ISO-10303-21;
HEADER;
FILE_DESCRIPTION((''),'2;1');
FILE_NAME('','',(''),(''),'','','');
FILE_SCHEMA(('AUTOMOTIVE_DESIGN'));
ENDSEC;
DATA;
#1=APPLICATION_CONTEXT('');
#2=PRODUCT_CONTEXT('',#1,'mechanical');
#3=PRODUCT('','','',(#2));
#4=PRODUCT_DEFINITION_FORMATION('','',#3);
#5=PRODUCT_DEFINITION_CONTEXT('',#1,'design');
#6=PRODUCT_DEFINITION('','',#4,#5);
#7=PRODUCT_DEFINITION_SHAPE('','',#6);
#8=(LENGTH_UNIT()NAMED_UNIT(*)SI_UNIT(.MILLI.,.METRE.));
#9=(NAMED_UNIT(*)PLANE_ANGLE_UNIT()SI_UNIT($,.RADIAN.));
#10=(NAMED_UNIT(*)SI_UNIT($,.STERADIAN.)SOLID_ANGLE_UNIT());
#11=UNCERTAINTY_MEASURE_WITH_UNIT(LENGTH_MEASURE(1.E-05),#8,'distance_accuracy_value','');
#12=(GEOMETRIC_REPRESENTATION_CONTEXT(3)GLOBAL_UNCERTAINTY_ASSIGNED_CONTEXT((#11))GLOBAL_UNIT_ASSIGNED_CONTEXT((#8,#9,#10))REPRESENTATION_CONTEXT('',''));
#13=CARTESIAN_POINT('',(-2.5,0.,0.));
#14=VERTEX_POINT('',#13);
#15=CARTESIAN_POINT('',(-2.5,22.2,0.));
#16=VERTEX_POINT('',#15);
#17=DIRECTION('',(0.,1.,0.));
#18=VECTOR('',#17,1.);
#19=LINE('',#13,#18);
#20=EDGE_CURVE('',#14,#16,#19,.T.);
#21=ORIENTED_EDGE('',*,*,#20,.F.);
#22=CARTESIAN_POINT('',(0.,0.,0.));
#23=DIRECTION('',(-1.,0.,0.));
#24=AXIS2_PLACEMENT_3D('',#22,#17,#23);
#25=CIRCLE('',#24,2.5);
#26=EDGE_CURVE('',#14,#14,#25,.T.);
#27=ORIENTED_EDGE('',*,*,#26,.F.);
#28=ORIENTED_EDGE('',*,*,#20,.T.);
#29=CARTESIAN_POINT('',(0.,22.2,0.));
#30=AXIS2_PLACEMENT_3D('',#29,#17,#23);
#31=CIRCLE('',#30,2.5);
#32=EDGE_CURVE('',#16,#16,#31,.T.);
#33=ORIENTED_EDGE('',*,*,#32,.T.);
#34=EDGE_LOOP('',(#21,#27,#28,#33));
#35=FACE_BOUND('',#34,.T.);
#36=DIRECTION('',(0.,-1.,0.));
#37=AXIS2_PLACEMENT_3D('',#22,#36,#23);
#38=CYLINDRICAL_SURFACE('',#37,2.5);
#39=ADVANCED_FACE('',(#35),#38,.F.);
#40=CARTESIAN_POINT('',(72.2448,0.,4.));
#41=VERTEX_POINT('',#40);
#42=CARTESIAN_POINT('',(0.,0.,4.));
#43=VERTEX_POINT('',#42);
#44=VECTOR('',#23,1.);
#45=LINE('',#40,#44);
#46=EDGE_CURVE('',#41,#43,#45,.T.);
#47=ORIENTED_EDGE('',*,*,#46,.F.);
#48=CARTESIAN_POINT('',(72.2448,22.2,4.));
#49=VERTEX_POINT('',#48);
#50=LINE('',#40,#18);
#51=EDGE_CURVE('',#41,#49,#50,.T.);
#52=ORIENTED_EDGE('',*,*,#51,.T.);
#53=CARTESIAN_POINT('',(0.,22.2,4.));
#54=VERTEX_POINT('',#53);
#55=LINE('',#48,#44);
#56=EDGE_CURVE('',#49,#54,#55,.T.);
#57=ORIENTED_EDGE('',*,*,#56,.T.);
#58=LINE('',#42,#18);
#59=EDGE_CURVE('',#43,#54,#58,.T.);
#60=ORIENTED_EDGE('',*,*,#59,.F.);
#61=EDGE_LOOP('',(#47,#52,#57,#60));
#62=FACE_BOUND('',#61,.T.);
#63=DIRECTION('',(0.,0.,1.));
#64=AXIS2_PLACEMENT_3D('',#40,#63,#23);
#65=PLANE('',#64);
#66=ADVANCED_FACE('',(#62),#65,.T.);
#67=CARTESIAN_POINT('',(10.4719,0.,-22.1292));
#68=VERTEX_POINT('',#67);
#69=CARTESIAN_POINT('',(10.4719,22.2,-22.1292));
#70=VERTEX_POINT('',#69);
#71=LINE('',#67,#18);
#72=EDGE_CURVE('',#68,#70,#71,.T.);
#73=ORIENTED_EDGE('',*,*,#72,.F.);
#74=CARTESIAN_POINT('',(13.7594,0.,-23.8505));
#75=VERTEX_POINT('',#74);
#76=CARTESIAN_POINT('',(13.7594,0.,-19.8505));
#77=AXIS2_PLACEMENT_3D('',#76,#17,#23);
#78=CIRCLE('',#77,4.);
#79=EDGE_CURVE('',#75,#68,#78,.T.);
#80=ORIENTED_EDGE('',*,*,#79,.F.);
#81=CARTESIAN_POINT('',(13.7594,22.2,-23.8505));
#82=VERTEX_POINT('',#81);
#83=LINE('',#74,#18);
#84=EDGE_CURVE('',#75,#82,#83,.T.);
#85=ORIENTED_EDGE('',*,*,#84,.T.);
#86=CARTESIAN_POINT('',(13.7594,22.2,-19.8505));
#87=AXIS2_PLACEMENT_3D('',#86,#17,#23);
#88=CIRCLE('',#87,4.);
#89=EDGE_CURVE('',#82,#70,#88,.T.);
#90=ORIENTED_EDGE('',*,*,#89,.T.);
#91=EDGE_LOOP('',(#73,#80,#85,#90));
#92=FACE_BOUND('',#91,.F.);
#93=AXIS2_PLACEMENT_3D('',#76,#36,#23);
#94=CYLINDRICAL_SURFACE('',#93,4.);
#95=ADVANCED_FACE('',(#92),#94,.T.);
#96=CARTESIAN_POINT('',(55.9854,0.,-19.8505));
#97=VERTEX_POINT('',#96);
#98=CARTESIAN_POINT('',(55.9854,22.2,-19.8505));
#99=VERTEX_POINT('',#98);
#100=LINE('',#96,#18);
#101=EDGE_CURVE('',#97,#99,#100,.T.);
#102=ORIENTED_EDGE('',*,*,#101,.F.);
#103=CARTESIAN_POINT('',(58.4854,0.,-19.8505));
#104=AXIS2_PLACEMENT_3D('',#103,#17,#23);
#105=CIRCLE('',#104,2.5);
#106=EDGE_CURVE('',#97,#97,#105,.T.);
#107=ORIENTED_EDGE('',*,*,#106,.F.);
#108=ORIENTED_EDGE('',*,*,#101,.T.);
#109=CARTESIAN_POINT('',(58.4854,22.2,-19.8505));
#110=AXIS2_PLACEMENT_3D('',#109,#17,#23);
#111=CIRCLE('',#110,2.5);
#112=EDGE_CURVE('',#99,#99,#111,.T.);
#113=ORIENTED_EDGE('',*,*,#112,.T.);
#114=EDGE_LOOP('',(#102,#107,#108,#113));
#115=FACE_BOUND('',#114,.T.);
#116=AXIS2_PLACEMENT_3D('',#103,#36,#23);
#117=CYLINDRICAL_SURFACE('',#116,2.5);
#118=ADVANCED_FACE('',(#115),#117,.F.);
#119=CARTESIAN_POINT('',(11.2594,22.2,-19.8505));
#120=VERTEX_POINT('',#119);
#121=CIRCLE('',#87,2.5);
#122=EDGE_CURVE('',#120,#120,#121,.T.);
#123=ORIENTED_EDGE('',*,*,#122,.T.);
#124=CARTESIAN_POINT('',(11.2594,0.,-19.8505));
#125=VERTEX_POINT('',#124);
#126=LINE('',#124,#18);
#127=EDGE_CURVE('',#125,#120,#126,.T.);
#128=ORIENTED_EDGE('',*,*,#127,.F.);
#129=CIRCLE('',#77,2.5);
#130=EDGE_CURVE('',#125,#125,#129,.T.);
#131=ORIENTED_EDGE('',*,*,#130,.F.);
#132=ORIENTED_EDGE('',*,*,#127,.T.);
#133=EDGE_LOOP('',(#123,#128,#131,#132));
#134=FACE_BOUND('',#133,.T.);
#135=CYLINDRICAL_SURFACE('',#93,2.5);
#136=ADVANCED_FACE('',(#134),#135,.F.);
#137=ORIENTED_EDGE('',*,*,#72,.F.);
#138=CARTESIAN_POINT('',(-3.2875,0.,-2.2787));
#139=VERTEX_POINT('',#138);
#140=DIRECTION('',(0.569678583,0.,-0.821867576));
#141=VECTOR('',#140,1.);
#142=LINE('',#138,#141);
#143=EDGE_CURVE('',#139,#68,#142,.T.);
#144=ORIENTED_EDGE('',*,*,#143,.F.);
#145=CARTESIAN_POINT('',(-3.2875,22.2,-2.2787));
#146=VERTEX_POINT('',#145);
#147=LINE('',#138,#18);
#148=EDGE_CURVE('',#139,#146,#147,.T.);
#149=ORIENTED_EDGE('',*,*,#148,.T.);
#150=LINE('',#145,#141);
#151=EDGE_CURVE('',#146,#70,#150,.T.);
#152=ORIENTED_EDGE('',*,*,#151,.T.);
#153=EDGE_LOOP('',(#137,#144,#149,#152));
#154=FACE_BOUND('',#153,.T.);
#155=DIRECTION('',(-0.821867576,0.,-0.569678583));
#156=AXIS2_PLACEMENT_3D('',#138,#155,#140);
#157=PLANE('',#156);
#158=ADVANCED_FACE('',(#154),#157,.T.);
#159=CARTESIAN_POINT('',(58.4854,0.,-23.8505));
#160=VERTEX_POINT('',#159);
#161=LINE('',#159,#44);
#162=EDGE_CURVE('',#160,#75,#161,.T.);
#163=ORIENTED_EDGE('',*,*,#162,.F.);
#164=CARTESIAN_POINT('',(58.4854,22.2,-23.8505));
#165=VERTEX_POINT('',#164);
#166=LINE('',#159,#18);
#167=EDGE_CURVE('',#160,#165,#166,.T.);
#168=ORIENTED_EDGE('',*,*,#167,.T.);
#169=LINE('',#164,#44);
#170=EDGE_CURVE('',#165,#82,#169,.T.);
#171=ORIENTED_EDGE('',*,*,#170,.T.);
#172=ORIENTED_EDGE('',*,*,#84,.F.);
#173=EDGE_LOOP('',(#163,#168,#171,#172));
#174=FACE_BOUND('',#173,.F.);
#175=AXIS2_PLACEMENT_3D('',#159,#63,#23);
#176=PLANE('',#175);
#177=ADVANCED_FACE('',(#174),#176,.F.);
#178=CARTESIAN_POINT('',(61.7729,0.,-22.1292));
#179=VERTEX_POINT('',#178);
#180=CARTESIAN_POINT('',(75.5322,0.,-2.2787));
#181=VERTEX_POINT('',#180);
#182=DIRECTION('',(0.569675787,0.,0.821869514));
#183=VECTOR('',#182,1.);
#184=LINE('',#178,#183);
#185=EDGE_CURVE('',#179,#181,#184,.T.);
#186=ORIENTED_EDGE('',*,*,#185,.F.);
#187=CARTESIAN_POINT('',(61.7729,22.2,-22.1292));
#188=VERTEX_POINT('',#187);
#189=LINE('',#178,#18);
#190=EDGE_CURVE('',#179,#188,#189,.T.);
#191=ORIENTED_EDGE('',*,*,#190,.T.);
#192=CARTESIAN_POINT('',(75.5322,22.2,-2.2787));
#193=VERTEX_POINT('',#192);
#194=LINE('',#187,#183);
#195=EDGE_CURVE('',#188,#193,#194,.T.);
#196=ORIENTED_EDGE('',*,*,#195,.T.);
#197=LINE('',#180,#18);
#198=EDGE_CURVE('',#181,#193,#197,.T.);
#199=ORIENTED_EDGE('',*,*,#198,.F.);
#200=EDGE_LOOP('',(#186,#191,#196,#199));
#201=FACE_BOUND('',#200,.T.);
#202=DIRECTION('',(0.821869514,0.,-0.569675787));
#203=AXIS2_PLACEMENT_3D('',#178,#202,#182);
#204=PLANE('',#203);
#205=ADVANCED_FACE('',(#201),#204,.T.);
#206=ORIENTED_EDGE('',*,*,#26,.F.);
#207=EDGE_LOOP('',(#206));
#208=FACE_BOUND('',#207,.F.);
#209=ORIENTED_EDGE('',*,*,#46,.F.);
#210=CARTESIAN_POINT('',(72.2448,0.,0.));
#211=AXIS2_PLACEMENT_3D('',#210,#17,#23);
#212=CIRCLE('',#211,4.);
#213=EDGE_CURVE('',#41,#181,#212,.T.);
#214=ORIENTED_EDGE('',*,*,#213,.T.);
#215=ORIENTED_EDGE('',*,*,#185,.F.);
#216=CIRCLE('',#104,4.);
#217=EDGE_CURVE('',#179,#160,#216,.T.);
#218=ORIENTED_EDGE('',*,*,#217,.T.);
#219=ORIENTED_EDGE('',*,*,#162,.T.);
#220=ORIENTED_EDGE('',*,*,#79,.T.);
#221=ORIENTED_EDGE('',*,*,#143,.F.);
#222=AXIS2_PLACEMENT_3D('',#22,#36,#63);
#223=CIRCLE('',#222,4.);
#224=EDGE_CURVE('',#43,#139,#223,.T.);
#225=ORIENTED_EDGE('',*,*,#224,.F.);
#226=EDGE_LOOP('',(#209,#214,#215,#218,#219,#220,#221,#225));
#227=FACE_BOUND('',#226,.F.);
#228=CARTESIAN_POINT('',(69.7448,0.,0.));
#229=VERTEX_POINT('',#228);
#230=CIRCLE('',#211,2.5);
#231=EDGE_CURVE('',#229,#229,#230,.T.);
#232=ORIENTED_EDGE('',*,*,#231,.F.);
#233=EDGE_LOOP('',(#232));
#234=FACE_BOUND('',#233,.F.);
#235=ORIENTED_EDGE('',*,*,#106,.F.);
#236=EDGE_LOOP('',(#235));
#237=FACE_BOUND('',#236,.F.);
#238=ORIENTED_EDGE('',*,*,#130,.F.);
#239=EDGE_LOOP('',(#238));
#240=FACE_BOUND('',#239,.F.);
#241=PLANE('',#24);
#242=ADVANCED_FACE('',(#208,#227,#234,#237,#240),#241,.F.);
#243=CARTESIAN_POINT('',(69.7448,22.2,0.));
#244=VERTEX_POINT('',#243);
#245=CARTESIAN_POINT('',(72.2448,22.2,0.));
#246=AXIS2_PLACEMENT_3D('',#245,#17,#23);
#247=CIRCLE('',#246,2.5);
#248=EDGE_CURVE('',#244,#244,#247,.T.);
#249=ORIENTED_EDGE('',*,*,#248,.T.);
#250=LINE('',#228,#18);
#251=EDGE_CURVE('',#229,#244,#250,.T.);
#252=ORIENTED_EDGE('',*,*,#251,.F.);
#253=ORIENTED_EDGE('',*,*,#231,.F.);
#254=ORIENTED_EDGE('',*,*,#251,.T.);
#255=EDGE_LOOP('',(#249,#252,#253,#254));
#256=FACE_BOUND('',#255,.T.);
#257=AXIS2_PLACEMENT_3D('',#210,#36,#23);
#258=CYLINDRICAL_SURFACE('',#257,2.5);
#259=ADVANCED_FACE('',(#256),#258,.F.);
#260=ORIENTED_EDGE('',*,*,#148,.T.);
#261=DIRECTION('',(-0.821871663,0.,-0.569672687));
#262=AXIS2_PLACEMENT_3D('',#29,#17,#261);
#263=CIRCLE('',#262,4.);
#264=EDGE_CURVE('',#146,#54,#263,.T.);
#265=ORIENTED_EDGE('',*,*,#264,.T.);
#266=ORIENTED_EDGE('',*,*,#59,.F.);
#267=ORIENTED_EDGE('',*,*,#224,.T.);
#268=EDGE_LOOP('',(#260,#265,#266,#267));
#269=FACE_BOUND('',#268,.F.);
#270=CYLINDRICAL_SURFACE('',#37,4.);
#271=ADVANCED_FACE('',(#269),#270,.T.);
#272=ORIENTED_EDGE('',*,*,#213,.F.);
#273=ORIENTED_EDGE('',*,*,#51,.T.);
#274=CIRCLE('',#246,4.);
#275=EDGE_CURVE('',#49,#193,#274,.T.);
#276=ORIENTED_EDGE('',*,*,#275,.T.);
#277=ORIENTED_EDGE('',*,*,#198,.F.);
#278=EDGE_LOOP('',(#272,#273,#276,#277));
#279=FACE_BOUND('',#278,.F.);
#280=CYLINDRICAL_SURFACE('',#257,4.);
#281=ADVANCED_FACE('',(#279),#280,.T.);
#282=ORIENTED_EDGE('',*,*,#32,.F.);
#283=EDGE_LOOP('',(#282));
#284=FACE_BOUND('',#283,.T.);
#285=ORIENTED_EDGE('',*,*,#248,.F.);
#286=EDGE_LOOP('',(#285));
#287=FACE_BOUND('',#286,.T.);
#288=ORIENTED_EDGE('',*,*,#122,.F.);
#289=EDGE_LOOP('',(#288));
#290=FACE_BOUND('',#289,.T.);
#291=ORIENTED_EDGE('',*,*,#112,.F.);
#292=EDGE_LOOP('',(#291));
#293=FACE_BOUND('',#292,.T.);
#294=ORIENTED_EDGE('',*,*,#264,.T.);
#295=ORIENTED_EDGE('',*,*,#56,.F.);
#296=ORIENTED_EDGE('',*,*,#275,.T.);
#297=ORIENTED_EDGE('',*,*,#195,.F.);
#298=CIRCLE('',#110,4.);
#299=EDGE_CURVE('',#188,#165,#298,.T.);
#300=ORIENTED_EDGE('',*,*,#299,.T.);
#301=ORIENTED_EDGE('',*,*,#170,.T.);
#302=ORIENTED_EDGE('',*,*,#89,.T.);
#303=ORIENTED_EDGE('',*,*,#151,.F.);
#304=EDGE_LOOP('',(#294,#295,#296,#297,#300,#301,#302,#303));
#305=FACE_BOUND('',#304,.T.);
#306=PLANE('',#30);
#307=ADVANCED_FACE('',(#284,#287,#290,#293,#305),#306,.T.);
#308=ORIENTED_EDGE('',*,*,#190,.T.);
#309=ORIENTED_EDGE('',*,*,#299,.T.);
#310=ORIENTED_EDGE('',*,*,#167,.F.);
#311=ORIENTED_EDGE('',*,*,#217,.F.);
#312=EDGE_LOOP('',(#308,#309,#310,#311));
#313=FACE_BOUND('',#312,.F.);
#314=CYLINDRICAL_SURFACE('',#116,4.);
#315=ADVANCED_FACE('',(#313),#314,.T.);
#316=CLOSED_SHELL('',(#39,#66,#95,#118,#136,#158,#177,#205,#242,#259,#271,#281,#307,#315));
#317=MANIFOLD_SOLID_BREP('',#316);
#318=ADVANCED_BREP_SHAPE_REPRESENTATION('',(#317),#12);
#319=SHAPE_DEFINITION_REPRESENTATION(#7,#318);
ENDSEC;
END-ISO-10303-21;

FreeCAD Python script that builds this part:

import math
import FreeCAD as App
import Part
import Sketcher
from FreeCAD import Vector

doc = App.newDocument("Part")
params = doc.addObject("Spreadsheet::Sheet", "Params")
for row, (alias, value) in enumerate([
    ("sketch1_radius", "4 mm"),
    ("sketch1_diameter", "5 mm"),
    ("pad1_length", "22.2 mm"),
], start=1):
    params.set(f"A{row}", alias)
    params.set(f"B{row}", "=" + value)
    params.setAlias(f"B{row}", alias)

body = doc.addObject("PartDesign::Body", "Body")

# Sketch on XZ plane
sketch1 = doc.addObject("Sketcher::SketchObject", "Sketch")
body.addObject(sketch1)
sketch1.AttachmentSupport = (doc.XZ_Plane, [""])
sketch1.MapMode = "FlatFace"
sketch1.addGeometry([
    Part.ArcOfCircle(Part.Circle(Vector(72.2, 0, 0), Vector(0, 0, 1), 4), math.radians(-35), math.radians(90)),  # 0
    Part.LineSegment(Vector(75.5, -2.3, 0), Vector(61.8, -22.1, 0)),  # 1
    Part.ArcOfCircle(Part.Circle(Vector(58.5, -19.9, 0), Vector(0, 0, 1), 4), math.radians(-90), math.radians(-35)),  # 2
    Part.LineSegment(Vector(58.5, -23.9, 0), Vector(13.8, -23.9, 0)),  # 3
    Part.ArcOfCircle(Part.Circle(Vector(13.8, -19.9, 0), Vector(0, 0, 1), 4), math.radians(-145), math.radians(-90)),  # 4
    Part.LineSegment(Vector(10.5, -22.1, 0), Vector(-3.3, -2.3, 0)),  # 5
    Part.ArcOfCircle(Part.Circle(Vector(0, 0, 0), Vector(0, 0, 1), 4), math.radians(90), math.radians(215)),  # 6
    Part.LineSegment(Vector(0, 4, 0), Vector(72.2, 4, 0)),  # 7
    Part.Circle(Vector(72.2, 0, 0), Vector(0, 0, 1), 2.5),  # 8
    Part.Circle(Vector(0, 0, 0), Vector(0, 0, 1), 2.5),  # 9
    Part.Circle(Vector(13.8, -19.9, 0), Vector(0, 0, 1), 2.5),  # 10
    Part.Circle(Vector(58.5, -19.9, 0), Vector(0, 0, 1), 2.5),  # 11
], False)
sketch1.addConstraint([
    Sketcher.Constraint("Tangent", 0, 1, 1, 1),
    Sketcher.Constraint("Tangent", 1, 2, 2, 2),
    Sketcher.Constraint("Tangent", 2, 1, 3, 1),
    Sketcher.Constraint("Tangent", 3, 2, 4, 2),
    Sketcher.Constraint("Tangent", 4, 1, 5, 1),
    Sketcher.Constraint("Tangent", 5, 2, 6, 2),
    Sketcher.Constraint("Tangent", 6, 1, 7, 1),
    Sketcher.Constraint("Tangent", 7, 2, 0, 2),
    Sketcher.Constraint("Horizontal", 3),
    Sketcher.Constraint("Horizontal", 7),
    Sketcher.Constraint("Coincident", 6, 3, -1, 1),
    Sketcher.Constraint("Coincident", 9, 3, -1, 1),
    Sketcher.Constraint("Coincident", 8, 3, 0, 3),
    Sketcher.Constraint("Coincident", 10, 3, 4, 3),
    Sketcher.Constraint("Coincident", 11, 3, 2, 3),
    Sketcher.Constraint("Equal", 0, 2),
    Sketcher.Constraint("Equal", 2, 4),
    Sketcher.Constraint("Equal", 4, 6),
    Sketcher.Constraint("Equal", 8, 9),
    Sketcher.Constraint("Equal", 9, 10),
    Sketcher.Constraint("Equal", 10, 11),
    Sketcher.Constraint("Horizontal", 1, 2, 4, 1),
    Sketcher.Constraint("Radius", 0, 4.0),
    Sketcher.Constraint("Diameter", 8, 5.0),
    Sketcher.Constraint("DistanceX", 3, 2, 3, 1, 44.726),
    Sketcher.Constraint("Distance", 5, 24.153),
    Sketcher.Constraint("DistanceX", 7, 1, 7, 2, 72.2448),
])
sketch1.setExpression("Constraints[22]", "Params.sketch1_radius")
sketch1.setExpression("Constraints[23]", "Params.sketch1_diameter")
pad1 = doc.addObject("PartDesign::Pad", "Pad")
body.addObject(pad1)
pad1.Profile = sketch1
pad1.setExpression("Length", "Params.pad1_length")
pad1.Reversed = True

doc.recompute()
